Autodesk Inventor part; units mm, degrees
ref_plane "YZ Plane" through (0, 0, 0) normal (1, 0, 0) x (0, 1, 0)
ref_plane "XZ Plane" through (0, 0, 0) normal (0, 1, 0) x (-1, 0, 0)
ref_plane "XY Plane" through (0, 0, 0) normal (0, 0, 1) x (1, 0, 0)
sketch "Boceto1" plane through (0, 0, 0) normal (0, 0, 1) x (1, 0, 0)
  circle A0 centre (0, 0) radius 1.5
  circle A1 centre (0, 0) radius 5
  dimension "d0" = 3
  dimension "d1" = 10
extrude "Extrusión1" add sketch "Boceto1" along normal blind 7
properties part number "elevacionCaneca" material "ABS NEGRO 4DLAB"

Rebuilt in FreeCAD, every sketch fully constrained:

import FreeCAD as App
import Part
import Sketcher
from FreeCAD import Vector
Q = App.Units.Quantity

doc = App.newDocument("Part")
body = doc.addObject("PartDesign::Body", "Body")

# Sketch on XY plane
sketch1 = body.newObject("Sketcher::SketchObject", "Sketch")
sketch1.AttachmentSupport = (doc.getObject("XY_Plane"), [""])
sketch1.MapMode = "FlatFace"
sketch1.addGeometry(Part.Circle(Vector(0, 0, 0), Vector(0, 0, 1), 5), False)
sketch1.addGeometry(Part.Circle(Vector(0, 0, 0), Vector(0, 0, 1), 1.5), False)
sketch1.addConstraint(Sketcher.Constraint("Coincident", 0, 3, -1, 1))
sketch1.addConstraint(Sketcher.Constraint("Coincident", 1, 3, -1, 1))
sketch1.addConstraint(Sketcher.Constraint("Diameter", 0, Q("10 mm")))
sketch1.addConstraint(Sketcher.Constraint("Diameter", 1, Q("3 mm")))
pad1 = body.newObject("PartDesign::Pad", "Pad")
pad1.Profile = sketch1
pad1.Length = 7

doc.recompute()
